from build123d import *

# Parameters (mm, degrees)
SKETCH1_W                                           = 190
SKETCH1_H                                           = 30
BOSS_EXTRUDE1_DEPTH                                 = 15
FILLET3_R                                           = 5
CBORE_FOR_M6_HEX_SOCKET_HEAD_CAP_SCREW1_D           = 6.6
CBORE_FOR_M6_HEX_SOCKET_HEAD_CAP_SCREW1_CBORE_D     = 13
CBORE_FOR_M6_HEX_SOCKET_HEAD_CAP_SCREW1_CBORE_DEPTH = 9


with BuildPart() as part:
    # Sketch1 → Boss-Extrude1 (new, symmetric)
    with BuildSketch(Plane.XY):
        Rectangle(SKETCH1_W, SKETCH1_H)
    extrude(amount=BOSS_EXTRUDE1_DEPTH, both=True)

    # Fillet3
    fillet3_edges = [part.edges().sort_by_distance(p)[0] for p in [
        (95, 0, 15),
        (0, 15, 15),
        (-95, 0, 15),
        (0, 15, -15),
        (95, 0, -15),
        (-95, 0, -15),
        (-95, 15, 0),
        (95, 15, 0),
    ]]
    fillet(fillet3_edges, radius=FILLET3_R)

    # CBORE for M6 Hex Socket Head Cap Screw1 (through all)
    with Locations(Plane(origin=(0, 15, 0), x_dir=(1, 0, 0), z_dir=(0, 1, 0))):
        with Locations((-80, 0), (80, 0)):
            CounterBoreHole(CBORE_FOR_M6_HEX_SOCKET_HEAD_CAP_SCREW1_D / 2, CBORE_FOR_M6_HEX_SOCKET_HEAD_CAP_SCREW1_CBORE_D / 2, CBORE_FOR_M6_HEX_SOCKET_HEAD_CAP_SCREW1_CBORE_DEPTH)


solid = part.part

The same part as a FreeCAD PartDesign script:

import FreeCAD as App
import Part
import Sketcher


def edges_at(feature, points):
    """Names of the edges that pass closest to the given points."""
    edges = feature.Shape.Edges
    near = lambda p: min(range(len(edges)), key=lambda i: edges[i].distToShape(Part.Vertex(*p))[0])
    return sorted({f"Edge{near(p) + 1}" for p in points})

doc = App.newDocument("Part")
body = doc.addObject("PartDesign::Body", "Body")

# Sketch on XY plane
sketch1 = body.newObject("Sketcher::SketchObject", "Sketch")
sketch1.AttachmentSupport = (doc.getObject("XY_Plane"), [""])
sketch1.MapMode = "FlatFace"
sketch1.addGeometry(Part.LineSegment(App.Vector(-95, 15, 0), App.Vector(-95, -15, 0)), False)
sketch1.addGeometry(Part.LineSegment(App.Vector(-95, -15, 0), App.Vector(95, -15, 0)), False)
sketch1.addGeometry(Part.LineSegment(App.Vector(95, -15, 0), App.Vector(95, 15, 0)), False)
sketch1.addGeometry(Part.LineSegment(App.Vector(95, 15, 0), App.Vector(-95, 15, 0)), False)
sketch1.addConstraint(Sketcher.Constraint("Coincident", 0, 2, 1, 1))
sketch1.addConstraint(Sketcher.Constraint("Coincident", 1, 2, 2, 1))
sketch1.addConstraint(Sketcher.Constraint("Coincident", 2, 2, 3, 1))
sketch1.addConstraint(Sketcher.Constraint("Coincident", 3, 2, 0, 1))
sketch1.addConstraint(Sketcher.Constraint("Vertical", 0))
sketch1.addConstraint(Sketcher.Constraint("Horizontal", 1))
sketch1.addConstraint(Sketcher.Constraint("Vertical", 2))
sketch1.addConstraint(Sketcher.Constraint("Horizontal", 3))
sketch1.addConstraint(Sketcher.Constraint("Symmetric", 0, 2, 2, 2, -1, 1))
sketch1.addConstraint(Sketcher.Constraint("DistanceX", 1, 1, 1, 2, 190.0))
sketch1.addConstraint(Sketcher.Constraint("DistanceY", 0, 2, 0, 1, 30.0))
pad1 = body.newObject("PartDesign::Pad", "Pad")
pad1.Profile = sketch1
pad1.Length = 30
pad1.Midplane = True
doc.recompute()

fillet = body.newObject("PartDesign::Fillet", "Fillet")
fillet.Base = (pad1, edges_at(pad1, [
    (95, 0, 15),
    (0, 15, 15),
    (-95, 0, 15),
    (0, 15, -15),
    (95, 0, -15),
    (-95, 0, -15),
    (-95, 15, 0),
    (95, 15, 0),
]))
fillet.Radius = 5

# Sketch on XZ plane
sketch2 = body.newObject("Sketcher::SketchObject", "Sketch001")
sketch2.AttachmentSupport = (doc.getObject("XZ_Plane"), [""])
sketch2.MapMode = "FlatFace"
sketch2.AttachmentOffset = App.Placement(App.Vector(0, 0, -15), App.Rotation())
sketch2.addGeometry(Part.Circle(App.Vector(-80, 0, 0), App.Vector(0, 0, 1), 3.3), False)
sketch2.addGeometry(Part.Circle(App.Vector(80, 0, 0), App.Vector(0, 0, 1), 3.3), False)
sketch2.addConstraint(Sketcher.Constraint("Equal", 0, 1))
sketch2.addConstraint(Sketcher.Constraint("Symmetric", 0, 3, 1, 3, -1, 1))
sketch2.addConstraint(Sketcher.Constraint("PointOnObject", 0, 3, -1))
sketch2.addConstraint(Sketcher.Constraint("Diameter", 0, 6.6))
sketch2.addConstraint(Sketcher.Constraint("DistanceX", 0, 3, -1, 1, 80.0))
doc.recompute()
hole = body.newObject("PartDesign::Hole", "Hole")
hole.Profile = sketch2
hole.ThreadType = "None"
hole.Diameter = 6.6
hole.DepthType = "ThroughAll"
hole.HoleCutType = "Counterbore"
hole.HoleCutDiameter = 13
hole.HoleCutDepth = 9
hole.Reversed = True

doc.recompute()
